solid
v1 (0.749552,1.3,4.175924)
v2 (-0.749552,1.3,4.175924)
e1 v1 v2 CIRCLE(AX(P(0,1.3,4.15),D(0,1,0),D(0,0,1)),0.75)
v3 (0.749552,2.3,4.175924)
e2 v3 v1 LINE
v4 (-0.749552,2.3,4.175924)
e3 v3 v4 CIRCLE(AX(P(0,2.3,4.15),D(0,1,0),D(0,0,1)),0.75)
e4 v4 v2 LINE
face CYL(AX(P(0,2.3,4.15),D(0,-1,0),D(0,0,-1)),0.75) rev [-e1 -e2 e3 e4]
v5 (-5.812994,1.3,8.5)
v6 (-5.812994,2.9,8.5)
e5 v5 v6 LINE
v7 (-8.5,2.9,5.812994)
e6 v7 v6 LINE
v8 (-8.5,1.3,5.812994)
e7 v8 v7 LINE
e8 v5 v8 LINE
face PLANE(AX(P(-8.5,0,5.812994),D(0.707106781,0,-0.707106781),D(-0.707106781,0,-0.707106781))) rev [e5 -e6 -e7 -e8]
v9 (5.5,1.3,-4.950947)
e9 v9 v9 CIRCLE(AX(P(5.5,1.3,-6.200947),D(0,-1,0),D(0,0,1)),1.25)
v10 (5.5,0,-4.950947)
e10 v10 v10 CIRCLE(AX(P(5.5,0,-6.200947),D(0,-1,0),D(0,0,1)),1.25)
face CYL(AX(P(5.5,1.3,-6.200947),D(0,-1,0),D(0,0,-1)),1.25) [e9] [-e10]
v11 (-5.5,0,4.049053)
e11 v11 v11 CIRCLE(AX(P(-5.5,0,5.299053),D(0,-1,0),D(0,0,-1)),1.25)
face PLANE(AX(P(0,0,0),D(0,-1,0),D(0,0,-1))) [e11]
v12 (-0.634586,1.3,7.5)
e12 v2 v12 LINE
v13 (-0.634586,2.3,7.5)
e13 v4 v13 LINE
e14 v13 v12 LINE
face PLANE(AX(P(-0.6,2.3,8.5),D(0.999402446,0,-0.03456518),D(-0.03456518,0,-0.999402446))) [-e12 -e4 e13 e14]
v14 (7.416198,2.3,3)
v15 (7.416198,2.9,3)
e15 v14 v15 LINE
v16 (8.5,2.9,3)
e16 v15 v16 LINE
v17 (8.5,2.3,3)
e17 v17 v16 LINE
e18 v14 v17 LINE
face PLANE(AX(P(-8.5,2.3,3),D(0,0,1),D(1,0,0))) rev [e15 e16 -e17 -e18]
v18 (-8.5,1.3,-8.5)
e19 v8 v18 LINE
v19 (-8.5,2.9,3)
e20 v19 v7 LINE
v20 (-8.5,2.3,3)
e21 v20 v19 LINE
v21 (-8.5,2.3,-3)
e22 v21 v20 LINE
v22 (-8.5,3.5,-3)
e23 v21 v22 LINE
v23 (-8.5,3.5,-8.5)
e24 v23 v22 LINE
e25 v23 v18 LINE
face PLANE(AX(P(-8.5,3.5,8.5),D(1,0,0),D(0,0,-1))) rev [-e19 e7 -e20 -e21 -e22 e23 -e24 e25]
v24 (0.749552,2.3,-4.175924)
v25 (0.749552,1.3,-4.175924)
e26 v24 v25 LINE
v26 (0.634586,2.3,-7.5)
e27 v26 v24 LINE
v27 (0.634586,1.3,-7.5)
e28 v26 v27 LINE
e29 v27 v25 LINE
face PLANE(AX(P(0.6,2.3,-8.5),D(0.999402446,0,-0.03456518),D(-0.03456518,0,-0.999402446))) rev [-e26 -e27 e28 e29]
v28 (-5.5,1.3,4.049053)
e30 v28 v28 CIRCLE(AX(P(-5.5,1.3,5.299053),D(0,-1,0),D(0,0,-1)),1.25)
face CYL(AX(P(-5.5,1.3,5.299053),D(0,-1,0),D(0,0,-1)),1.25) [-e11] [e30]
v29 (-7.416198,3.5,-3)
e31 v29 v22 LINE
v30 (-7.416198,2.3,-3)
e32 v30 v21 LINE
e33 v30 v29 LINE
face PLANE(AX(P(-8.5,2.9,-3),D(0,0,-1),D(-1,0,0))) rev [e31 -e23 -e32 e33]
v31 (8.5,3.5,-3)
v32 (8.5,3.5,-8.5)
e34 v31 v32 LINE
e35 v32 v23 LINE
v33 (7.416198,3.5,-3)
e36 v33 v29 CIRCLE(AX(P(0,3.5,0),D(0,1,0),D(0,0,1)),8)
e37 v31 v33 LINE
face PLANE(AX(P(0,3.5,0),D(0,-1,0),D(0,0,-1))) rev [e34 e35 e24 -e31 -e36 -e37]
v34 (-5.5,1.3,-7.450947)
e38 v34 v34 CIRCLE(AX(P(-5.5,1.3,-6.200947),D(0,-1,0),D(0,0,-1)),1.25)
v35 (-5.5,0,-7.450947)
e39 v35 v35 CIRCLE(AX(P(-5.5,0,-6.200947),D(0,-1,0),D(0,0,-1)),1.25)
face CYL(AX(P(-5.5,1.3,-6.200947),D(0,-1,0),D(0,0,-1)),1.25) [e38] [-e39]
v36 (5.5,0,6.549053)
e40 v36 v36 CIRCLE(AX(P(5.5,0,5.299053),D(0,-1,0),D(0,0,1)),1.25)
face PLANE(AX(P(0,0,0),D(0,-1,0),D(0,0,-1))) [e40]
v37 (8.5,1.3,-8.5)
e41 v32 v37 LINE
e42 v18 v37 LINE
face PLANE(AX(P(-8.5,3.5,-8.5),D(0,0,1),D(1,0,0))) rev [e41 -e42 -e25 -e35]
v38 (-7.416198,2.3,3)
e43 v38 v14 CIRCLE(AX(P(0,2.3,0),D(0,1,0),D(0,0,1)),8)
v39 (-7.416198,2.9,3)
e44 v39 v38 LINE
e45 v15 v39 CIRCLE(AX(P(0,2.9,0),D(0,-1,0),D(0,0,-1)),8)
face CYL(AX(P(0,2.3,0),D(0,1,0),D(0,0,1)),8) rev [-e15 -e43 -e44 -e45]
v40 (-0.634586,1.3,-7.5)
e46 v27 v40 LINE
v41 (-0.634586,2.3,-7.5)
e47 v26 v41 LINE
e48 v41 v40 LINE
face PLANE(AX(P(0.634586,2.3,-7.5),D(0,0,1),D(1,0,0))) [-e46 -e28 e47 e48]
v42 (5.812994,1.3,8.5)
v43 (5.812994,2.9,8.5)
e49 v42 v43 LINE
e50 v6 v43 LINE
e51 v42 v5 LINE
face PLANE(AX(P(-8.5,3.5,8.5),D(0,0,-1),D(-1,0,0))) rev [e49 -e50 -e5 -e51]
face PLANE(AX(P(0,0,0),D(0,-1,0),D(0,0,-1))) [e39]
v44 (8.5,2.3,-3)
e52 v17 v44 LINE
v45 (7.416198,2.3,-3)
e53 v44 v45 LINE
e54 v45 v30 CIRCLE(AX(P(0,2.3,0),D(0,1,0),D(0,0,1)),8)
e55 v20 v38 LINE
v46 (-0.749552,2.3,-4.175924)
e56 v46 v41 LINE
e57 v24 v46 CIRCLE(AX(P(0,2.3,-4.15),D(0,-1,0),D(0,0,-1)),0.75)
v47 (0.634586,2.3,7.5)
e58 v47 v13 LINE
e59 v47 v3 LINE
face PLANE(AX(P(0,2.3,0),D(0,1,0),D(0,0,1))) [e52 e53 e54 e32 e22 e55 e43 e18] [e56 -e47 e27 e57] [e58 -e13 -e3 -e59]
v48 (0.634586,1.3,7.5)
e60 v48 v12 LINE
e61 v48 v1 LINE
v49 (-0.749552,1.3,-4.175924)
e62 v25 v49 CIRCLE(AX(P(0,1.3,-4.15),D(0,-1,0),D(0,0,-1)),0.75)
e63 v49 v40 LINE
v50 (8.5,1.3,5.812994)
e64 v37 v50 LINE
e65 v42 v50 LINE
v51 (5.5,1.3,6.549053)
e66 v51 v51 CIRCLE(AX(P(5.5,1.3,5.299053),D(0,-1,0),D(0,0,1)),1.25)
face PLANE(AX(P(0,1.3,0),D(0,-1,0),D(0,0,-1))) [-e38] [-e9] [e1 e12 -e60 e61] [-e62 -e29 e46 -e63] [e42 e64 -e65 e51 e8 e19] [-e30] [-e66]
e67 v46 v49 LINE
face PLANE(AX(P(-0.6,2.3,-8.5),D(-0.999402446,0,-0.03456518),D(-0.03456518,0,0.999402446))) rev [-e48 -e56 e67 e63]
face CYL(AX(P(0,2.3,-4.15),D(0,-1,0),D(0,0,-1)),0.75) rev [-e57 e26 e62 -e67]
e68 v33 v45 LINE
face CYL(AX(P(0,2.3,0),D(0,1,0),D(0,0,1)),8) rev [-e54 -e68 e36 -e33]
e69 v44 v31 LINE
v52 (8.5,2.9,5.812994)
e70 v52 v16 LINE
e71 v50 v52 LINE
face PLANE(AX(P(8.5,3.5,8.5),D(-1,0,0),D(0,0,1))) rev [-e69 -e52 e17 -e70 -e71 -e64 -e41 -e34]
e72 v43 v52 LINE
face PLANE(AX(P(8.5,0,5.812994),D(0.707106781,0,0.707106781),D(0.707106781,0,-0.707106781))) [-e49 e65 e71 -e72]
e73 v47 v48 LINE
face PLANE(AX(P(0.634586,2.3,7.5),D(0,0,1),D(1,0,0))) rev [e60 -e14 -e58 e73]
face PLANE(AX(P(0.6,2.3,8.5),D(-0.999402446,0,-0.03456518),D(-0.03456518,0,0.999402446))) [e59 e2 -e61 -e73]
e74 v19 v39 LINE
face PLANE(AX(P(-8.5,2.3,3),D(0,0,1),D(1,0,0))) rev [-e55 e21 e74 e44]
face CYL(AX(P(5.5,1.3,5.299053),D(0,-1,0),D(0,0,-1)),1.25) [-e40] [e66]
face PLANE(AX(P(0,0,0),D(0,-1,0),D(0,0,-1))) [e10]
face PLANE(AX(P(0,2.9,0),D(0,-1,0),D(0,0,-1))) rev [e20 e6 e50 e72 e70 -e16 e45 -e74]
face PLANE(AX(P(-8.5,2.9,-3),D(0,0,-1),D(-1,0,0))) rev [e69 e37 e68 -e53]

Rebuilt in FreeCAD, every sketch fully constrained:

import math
import FreeCAD as App
import Part
import Sketcher
from FreeCAD import Vector
Q = App.Units.Quantity

doc = App.newDocument("Part")
body = doc.addObject("PartDesign::Body", "Body")

# Sketch on XZ plane
sketch1 = doc.addObject("Sketcher::SketchObject", "Sketch")
body.addObject(sketch1)
sketch1.AttachmentSupport = (doc.XZ_Plane, [""])
sketch1.MapMode = "FlatFace"
sketch1.addGeometry([
    Part.LineSegment(Vector(-8, -8, 0), Vector(-8, 8, 0)),
    Part.LineSegment(Vector(-8, 8, 0), Vector(8, 8, 0)),
    Part.LineSegment(Vector(8, 8, 0), Vector(8, -8, 0)),
    Part.LineSegment(Vector(8, -8, 0), Vector(-8, -8, 0)),
], False)
sketch1.addConstraint([
    Sketcher.Constraint("Coincident", 0, 2, 1, 1),
    Sketcher.Constraint("Coincident", 1, 2, 2, 1),
    Sketcher.Constraint("Coincident", 2, 2, 3, 1),
    Sketcher.Constraint("Coincident", 3, 2, 0, 1),
    Sketcher.Constraint("Vertical", 0),
    Sketcher.Constraint("Horizontal", 1),
    Sketcher.Constraint("Vertical", 2),
    Sketcher.Constraint("Horizontal", 3),
    Sketcher.Constraint("Symmetric", 0, 2, 2, 2, -1, 1),
    Sketcher.Constraint("Equal", 3, 0),
    Sketcher.Constraint("DistanceX", 1, 1, 1, 2, Q("17 mm")),
])
pad1 = doc.addObject("PartDesign::Pad", "Pad")
body.addObject(pad1)
pad1.Profile = sketch1
pad1.Length = 3.5
pad1.Reversed = True

# Sketch on XZ plane
sketch2 = doc.addObject("Sketcher::SketchObject", "Sketch001")
body.addObject(sketch2)
sketch2.AttachmentSupport = (doc.XZ_Plane, [""])
sketch2.MapMode = "FlatFace"
sketch2.AttachmentOffset = App.Placement(Vector(0, 0, -3.5), App.Rotation())
sketch2.addGeometry([
    Part.LineSegment(Vector(-5.8, 8.5, 0), Vector(-8.5, 5.8, 0)),
    Part.LineSegment(Vector(-8.5, 5.8, 0), Vector(-8.5, 8.5, 0)),
    Part.LineSegment(Vector(-8.5, 8.5, 0), Vector(-5.8, 8.5, 0)),
], False)
sketch2.addConstraint([
    Sketcher.Constraint("Coincident", 0, 2, 1, 1),
    Sketcher.Constraint("Coincident", 1, 2, 2, 1),
    Sketcher.Constraint("Coincident", 2, 2, 0, 1),
    Sketcher.Constraint("Vertical", 1),
    Sketcher.Constraint("Horizontal", 2),
    Sketcher.Constraint("Equal", 2, 1),
    Sketcher.Constraint("Distance", 0, Q("3.8 mm")),
    Sketcher.Constraint("DistanceX", 0, 2, -1, 1, Q("8.5 mm")),
    Sketcher.Constraint("DistanceY", -1, 1, 1, 2, Q("8.5 mm")),
])
pocket1 = doc.addObject("PartDesign::Pocket", "Pocket")
body.addObject(pocket1)
pocket1.Profile = sketch2
pocket1.Type = "ThroughAll"
pocket1.Reversed = True
doc.recompute()

mirrored = doc.addObject("PartDesign::Mirrored", "Mirrored")
body.addObject(mirrored)
mirrored.Originals = [pocket1]
mirrored.MirrorPlane = (doc.YZ_Plane, [""])
body.Tip = mirrored

# Sketch on XZ plane
sketch3 = doc.addObject("Sketcher::SketchObject", "Sketch002")
body.addObject(sketch3)
sketch3.AttachmentSupport = (doc.XZ_Plane, [""])
sketch3.MapMode = "FlatFace"
sketch3.AttachmentOffset = App.Placement(Vector(0, 0, -3.5), App.Rotation())
sketch3.addGeometry([
    Part.LineSegment(Vector(8.5, -3, 0), Vector(-8.5, -3, 0)),  # 0
    Part.LineSegment(Vector(-8.5, -3, 0), Vector(-8.5, 5.8, 0)),  # 1
    Part.LineSegment(Vector(-8.5, 5.8, 0), Vector(-5.8, 8.5, 0)),  # 2
    Part.LineSegment(Vector(-5.8, 8.5, 0), Vector(5.8, 8.5, 0)),  # 3
    Part.LineSegment(Vector(5.8, 8.5, 0), Vector(8.5, 5.8, 0)),  # 4
    Part.LineSegment(Vector(8.5, 5.8, 0), Vector(8.5, -3, 0)),  # 5
], False)
sketch3.addConstraint([
    Sketcher.Constraint("Coincident", 0, 2, 1, 1),
    Sketcher.Constraint("Coincident", 1, 2, 2, 1),
    Sketcher.Constraint("Coincident", 2, 2, 3, 1),
    Sketcher.Constraint("Coincident", 3, 2, 4, 1),
    Sketcher.Constraint("Coincident", 4, 2, 5, 1),
    Sketcher.Constraint("Coincident", 5, 2, 0, 1),
    Sketcher.Constraint("Horizontal", 0),
    Sketcher.Constraint("Vertical", 1),
    Sketcher.Constraint("Horizontal", 3),
    Sketcher.Constraint("Vertical", 5),
    Sketcher.Constraint("Symmetric", 1, 2, 4, 2, -2),
    Sketcher.Constraint("Perpendicular", 2, 4),
    Sketcher.Constraint("Equal", 2, 4),
    Sketcher.Constraint("DistanceX", 0, 2, 0, 1, Q("17 mm")),
    Sketcher.Constraint("DistanceY", 0, 2, -1, 1, Q("3 mm")),
    Sketcher.Constraint("Distance", 2, Q("3.8 mm")),
    Sketcher.Constraint("DistanceY", -1, 1, 2, 2, Q("8.5 mm")),
])
pocket2 = doc.addObject("PartDesign::Pocket", "Pocket001")
body.addObject(pocket2)
pocket2.Profile = sketch3
pocket2.Length = 0.6
pocket2.Reversed = True

# Sketch on XZ plane
sketch4 = doc.addObject("Sketcher::SketchObject", "Sketch003")
body.addObject(sketch4)
sketch4.AttachmentSupport = (doc.XZ_Plane, [""])
sketch4.MapMode = "FlatFace"
sketch4.AttachmentOffset = App.Placement(Vector(0, 0, -2.9), App.Rotation())
sketch4.addGeometry([
    Part.LineSegment(Vector(-8, -3, 0), Vector(-8, 3, 0)),
    Part.LineSegment(Vector(-8, 3, 0), Vector(8, 3, 0)),
    Part.LineSegment(Vector(8, 3, 0), Vector(8, -3, 0)),
    Part.LineSegment(Vector(8, -3, 0), Vector(-8, -3, 0)),
], False)
sketch4.addConstraint([
    Sketcher.Constraint("Coincident", 0, 2, 1, 1),
    Sketcher.Constraint("Coincident", 1, 2, 2, 1),
    Sketcher.Constraint("Coincident", 2, 2, 3, 1),
    Sketcher.Constraint("Coincident", 3, 2, 0, 1),
    Sketcher.Constraint("Vertical", 0),
    Sketcher.Constraint("Horizontal", 1),
    Sketcher.Constraint("Vertical", 2),
    Sketcher.Constraint("Horizontal", 3),
    Sketcher.Constraint("Symmetric", 0, 2, 2, 2, -1, 1),
    Sketcher.Constraint("DistanceX", 1, 1, 1, 2, Q("17 mm")),
    Sketcher.Constraint("DistanceY", 0, 1, 0, 2, Q("6 mm")),
])
pocket3 = doc.addObject("PartDesign::Pocket", "Pocket002")
body.addObject(pocket3)
pocket3.Profile = sketch4
pocket3.Length = 0.6
pocket3.Reversed = True

# Sketch on XZ plane
sketch5 = doc.addObject("Sketcher::SketchObject", "Sketch004")
body.addObject(sketch5)
sketch5.AttachmentSupport = (doc.XZ_Plane, [""])
sketch5.MapMode = "FlatFace"
sketch5.AttachmentOffset = App.Placement(Vector(0, 0, -3.5), App.Rotation())
sketch5.addGeometry(Part.Circle(Vector(0, 0, 0), Vector(0, 0, 1), 8), False)
sketch5.addConstraint([
    Sketcher.Constraint("Coincident", 0, 3, -1, 1),
    Sketcher.Constraint("Diameter", 0, Q("16 mm")),
])
pocket4 = doc.addObject("PartDesign::Pocket", "Pocket003")
body.addObject(pocket4)
pocket4.Profile = sketch5
pocket4.Length = 1.2
pocket4.Reversed = True

# Sketch on XZ plane
sketch6 = doc.addObject("Sketcher::SketchObject", "Sketch005")
body.addObject(sketch6)
sketch6.AttachmentSupport = (doc.XZ_Plane, [""])
sketch6.MapMode = "FlatFace"
sketch6.addGeometry([
    Part.LineSegment(Vector(-11.9, 11.9, 0), Vector(-11.9, -11.9, 0)),  # 0
    Part.LineSegment(Vector(-11.9, -11.9, 0), Vector(11.9, -11.9, 0)),  # 1
    Part.LineSegment(Vector(11.9, -11.9, 0), Vector(11.9, 11.9, 0)),  # 2
    Part.LineSegment(Vector(11.9, 11.9, 0), Vector(-11.9, 11.9, 0)),  # 3
    Part.Circle(Vector(-5.5, -6.2, 0), Vector(0, 0, 1), 1.2),  # 4
    Part.Circle(Vector(5.5, -6.2, 0), Vector(0, 0, 1), 1.2),  # 5
    Part.Circle(Vector(-5.5, 5.3, 0), Vector(0, 0, 1), 1.2),  # 6
    Part.Circle(Vector(5.5, 5.3, 0), Vector(0, 0, 1), 1.2),  # 7
], False)
sketch6.addConstraint([
    Sketcher.Constraint("Coincident", 0, 2, 1, 1),
    Sketcher.Constraint("Coincident", 1, 2, 2, 1),
    Sketcher.Constraint("Coincident", 2, 2, 3, 1),
    Sketcher.Constraint("Coincident", 3, 2, 0, 1),
    Sketcher.Constraint("Vertical", 0),
    Sketcher.Constraint("Horizontal", 1),
    Sketcher.Constraint("Vertical", 2),
    Sketcher.Constraint("Horizontal", 3),
    Sketcher.Constraint("Equal", 4, 5),
    Sketcher.Constraint("Equal", 5, 6),
    Sketcher.Constraint("Equal", 6, 7),
    Sketcher.Constraint("Symmetric", 0, 2, 2, 2, -1, 1),
    Sketcher.Constraint("Symmetric", 4, 3, 5, 3, -2),
    Sketcher.Constraint("Symmetric", 6, 3, 7, 3, -2),
    Sketcher.Constraint("Vertical", 4, 3, 6, 3),
    Sketcher.Constraint("Equal", 3, 0),
    Sketcher.Constraint("Diameter", 4, Q("2.5 mm")),
    Sketcher.Constraint("DistanceX", 4, 3, 5, 3, Q("11 mm")),
    Sketcher.Constraint("DistanceX", 1, 1, 1, 2, Q("23.86 mm")),
    Sketcher.Constraint("DistanceY", 4, 3, 6, 3, Q("11.5 mm")),
    Sketcher.Constraint("DistanceY", 4, 3, -1, 1, Q("6.200947 mm")),
])
pocket5 = doc.addObject("PartDesign::Pocket", "Pocket004")
body.addObject(pocket5)
pocket5.Profile = sketch6
pocket5.Length = 1.3

# Sketch on XZ plane
sketch7 = doc.addObject("Sketcher::SketchObject", "Sketch006")
body.addObject(sketch7)
sketch7.AttachmentSupport = (doc.XZ_Plane, [""])
sketch7.MapMode = "FlatFace"
sketch7.AttachmentOffset = App.Placement(Vector(0, 0, -1.3), App.Rotation())
sketch7.addGeometry([
    Part.LineSegment(Vector(-0.6, -8.5, 0), Vector(0.6, -8.5, 0)),
    Part.LineSegment(Vector(0.6, -8.5, 0), Vector(0.7, -4.2, 0)),
    Part.ArcOfCircle(Part.Circle(Vector(0, -4.2, 0), Vector(0, 0, 1), 0.8), math.radians(-2), math.radians(182)),
    Part.LineSegment(Vector(-0.7, -4.2, 0), Vector(-0.6, -8.5, 0)),
], False)
sketch7.addConstraint([
    Sketcher.Constraint("Coincident", 0, 2, 1, 1),
    Sketcher.Constraint("Tangent", 1, 2, 2, 1),
    Sketcher.Constraint("Tangent", 2, 2, 3, 1),
    Sketcher.Constraint("Coincident", 3, 2, 0, 1),
    Sketcher.Constraint("Horizontal", 0),
    Sketcher.Constraint("Symmetric", 1, 2, 2, 2, -2),
    Sketcher.Constraint("Radius", 2, Q("0.75 mm")),
    Sketcher.Constraint("DistanceX", 0, 1, 0, 2, Q("1.2 mm")),
    Sketcher.Constraint("DistanceY", 0, 2, -1, 1, Q("8.5 mm")),
    Sketcher.Constraint("DistanceY", 2, 3, -1, 1, Q("4.15 mm")),
])
pocket6 = doc.addObject("PartDesign::Pocket", "Pocket005")
body.addObject(pocket6)
pocket6.Profile = sketch7
pocket6.Length = 1
doc.recompute()

mirrored2 = doc.addObject("PartDesign::Mirrored", "Mirrored001")
body.addObject(mirrored2)
mirrored2.Originals = [pocket6]
mirrored2.MirrorPlane = (doc.XY_Plane, [""])
body.Tip = mirrored2

# Sketch on XZ plane
sketch8 = doc.addObject("Sketcher::SketchObject", "Sketch007")
body.addObject(sketch8)
sketch8.AttachmentSupport = (doc.XZ_Plane, [""])
sketch8.MapMode = "FlatFace"
sketch8.AttachmentOffset = App.Placement(Vector(0, 0, -1.3), App.Rotation())
sketch8.addGeometry([
    Part.LineSegment(Vector(-0.6, -8.5, 0), Vector(0.6, -8.5, 0)),
    Part.LineSegment(Vector(0.6, -8.5, 0), Vector(0.634586, -7.5, 0)),
    Part.LineSegment(Vector(0.634586, -7.5, 0), Vector(-0.634586, -7.5, 0)),
    Part.LineSegment(Vector(-0.634586, -7.5, 0), Vector(-0.6, -8.5, 0)),
], False)
sketch8.addConstraint([
    Sketcher.Constraint("Coincident", 0, 2, 1, 1),
    Sketcher.Constraint("Coincident", 1, 2, 2, 1),
    Sketcher.Constraint("Coincident", 2, 2, 3, 1),
    Sketcher.Constraint("Coincident", 3, 2, 0, 1),
    Sketcher.Constraint("Horizontal", 0),
    Sketcher.Constraint("Horizontal", 2),
    Sketcher.Constraint("Equal", 1, 3),
    Sketcher.Constraint("DistanceX", 0, 1, 0, 2, Q("1.2 mm")),
    Sketcher.Constraint("DistanceY", 0, 2, 1, 2, Q("1 mm")),
    Sketcher.Constraint("DistanceX", -1, 1, 0, 2, Q("0.6 mm")),
    Sketcher.Constraint("DistanceY", 0, 2, -1, 1, Q("8.5 mm")),
    Sketcher.Constraint("DistanceX", 2, 2, 2, 1, Q("1.269172 mm")),
])
pad2 = doc.addObject("PartDesign::Pad", "Pad001")
body.addObject(pad2)
pad2.Profile = sketch8
pad2.Length = 1
pad2.Reversed = True
doc.recompute()

mirrored3 = doc.addObject("PartDesign::Mirrored", "Mirrored002")
body.addObject(mirrored3)
mirrored3.Originals = [pad2]
mirrored3.MirrorPlane = (doc.XY_Plane, [""])
body.Tip = mirrored3

doc.recompute()
